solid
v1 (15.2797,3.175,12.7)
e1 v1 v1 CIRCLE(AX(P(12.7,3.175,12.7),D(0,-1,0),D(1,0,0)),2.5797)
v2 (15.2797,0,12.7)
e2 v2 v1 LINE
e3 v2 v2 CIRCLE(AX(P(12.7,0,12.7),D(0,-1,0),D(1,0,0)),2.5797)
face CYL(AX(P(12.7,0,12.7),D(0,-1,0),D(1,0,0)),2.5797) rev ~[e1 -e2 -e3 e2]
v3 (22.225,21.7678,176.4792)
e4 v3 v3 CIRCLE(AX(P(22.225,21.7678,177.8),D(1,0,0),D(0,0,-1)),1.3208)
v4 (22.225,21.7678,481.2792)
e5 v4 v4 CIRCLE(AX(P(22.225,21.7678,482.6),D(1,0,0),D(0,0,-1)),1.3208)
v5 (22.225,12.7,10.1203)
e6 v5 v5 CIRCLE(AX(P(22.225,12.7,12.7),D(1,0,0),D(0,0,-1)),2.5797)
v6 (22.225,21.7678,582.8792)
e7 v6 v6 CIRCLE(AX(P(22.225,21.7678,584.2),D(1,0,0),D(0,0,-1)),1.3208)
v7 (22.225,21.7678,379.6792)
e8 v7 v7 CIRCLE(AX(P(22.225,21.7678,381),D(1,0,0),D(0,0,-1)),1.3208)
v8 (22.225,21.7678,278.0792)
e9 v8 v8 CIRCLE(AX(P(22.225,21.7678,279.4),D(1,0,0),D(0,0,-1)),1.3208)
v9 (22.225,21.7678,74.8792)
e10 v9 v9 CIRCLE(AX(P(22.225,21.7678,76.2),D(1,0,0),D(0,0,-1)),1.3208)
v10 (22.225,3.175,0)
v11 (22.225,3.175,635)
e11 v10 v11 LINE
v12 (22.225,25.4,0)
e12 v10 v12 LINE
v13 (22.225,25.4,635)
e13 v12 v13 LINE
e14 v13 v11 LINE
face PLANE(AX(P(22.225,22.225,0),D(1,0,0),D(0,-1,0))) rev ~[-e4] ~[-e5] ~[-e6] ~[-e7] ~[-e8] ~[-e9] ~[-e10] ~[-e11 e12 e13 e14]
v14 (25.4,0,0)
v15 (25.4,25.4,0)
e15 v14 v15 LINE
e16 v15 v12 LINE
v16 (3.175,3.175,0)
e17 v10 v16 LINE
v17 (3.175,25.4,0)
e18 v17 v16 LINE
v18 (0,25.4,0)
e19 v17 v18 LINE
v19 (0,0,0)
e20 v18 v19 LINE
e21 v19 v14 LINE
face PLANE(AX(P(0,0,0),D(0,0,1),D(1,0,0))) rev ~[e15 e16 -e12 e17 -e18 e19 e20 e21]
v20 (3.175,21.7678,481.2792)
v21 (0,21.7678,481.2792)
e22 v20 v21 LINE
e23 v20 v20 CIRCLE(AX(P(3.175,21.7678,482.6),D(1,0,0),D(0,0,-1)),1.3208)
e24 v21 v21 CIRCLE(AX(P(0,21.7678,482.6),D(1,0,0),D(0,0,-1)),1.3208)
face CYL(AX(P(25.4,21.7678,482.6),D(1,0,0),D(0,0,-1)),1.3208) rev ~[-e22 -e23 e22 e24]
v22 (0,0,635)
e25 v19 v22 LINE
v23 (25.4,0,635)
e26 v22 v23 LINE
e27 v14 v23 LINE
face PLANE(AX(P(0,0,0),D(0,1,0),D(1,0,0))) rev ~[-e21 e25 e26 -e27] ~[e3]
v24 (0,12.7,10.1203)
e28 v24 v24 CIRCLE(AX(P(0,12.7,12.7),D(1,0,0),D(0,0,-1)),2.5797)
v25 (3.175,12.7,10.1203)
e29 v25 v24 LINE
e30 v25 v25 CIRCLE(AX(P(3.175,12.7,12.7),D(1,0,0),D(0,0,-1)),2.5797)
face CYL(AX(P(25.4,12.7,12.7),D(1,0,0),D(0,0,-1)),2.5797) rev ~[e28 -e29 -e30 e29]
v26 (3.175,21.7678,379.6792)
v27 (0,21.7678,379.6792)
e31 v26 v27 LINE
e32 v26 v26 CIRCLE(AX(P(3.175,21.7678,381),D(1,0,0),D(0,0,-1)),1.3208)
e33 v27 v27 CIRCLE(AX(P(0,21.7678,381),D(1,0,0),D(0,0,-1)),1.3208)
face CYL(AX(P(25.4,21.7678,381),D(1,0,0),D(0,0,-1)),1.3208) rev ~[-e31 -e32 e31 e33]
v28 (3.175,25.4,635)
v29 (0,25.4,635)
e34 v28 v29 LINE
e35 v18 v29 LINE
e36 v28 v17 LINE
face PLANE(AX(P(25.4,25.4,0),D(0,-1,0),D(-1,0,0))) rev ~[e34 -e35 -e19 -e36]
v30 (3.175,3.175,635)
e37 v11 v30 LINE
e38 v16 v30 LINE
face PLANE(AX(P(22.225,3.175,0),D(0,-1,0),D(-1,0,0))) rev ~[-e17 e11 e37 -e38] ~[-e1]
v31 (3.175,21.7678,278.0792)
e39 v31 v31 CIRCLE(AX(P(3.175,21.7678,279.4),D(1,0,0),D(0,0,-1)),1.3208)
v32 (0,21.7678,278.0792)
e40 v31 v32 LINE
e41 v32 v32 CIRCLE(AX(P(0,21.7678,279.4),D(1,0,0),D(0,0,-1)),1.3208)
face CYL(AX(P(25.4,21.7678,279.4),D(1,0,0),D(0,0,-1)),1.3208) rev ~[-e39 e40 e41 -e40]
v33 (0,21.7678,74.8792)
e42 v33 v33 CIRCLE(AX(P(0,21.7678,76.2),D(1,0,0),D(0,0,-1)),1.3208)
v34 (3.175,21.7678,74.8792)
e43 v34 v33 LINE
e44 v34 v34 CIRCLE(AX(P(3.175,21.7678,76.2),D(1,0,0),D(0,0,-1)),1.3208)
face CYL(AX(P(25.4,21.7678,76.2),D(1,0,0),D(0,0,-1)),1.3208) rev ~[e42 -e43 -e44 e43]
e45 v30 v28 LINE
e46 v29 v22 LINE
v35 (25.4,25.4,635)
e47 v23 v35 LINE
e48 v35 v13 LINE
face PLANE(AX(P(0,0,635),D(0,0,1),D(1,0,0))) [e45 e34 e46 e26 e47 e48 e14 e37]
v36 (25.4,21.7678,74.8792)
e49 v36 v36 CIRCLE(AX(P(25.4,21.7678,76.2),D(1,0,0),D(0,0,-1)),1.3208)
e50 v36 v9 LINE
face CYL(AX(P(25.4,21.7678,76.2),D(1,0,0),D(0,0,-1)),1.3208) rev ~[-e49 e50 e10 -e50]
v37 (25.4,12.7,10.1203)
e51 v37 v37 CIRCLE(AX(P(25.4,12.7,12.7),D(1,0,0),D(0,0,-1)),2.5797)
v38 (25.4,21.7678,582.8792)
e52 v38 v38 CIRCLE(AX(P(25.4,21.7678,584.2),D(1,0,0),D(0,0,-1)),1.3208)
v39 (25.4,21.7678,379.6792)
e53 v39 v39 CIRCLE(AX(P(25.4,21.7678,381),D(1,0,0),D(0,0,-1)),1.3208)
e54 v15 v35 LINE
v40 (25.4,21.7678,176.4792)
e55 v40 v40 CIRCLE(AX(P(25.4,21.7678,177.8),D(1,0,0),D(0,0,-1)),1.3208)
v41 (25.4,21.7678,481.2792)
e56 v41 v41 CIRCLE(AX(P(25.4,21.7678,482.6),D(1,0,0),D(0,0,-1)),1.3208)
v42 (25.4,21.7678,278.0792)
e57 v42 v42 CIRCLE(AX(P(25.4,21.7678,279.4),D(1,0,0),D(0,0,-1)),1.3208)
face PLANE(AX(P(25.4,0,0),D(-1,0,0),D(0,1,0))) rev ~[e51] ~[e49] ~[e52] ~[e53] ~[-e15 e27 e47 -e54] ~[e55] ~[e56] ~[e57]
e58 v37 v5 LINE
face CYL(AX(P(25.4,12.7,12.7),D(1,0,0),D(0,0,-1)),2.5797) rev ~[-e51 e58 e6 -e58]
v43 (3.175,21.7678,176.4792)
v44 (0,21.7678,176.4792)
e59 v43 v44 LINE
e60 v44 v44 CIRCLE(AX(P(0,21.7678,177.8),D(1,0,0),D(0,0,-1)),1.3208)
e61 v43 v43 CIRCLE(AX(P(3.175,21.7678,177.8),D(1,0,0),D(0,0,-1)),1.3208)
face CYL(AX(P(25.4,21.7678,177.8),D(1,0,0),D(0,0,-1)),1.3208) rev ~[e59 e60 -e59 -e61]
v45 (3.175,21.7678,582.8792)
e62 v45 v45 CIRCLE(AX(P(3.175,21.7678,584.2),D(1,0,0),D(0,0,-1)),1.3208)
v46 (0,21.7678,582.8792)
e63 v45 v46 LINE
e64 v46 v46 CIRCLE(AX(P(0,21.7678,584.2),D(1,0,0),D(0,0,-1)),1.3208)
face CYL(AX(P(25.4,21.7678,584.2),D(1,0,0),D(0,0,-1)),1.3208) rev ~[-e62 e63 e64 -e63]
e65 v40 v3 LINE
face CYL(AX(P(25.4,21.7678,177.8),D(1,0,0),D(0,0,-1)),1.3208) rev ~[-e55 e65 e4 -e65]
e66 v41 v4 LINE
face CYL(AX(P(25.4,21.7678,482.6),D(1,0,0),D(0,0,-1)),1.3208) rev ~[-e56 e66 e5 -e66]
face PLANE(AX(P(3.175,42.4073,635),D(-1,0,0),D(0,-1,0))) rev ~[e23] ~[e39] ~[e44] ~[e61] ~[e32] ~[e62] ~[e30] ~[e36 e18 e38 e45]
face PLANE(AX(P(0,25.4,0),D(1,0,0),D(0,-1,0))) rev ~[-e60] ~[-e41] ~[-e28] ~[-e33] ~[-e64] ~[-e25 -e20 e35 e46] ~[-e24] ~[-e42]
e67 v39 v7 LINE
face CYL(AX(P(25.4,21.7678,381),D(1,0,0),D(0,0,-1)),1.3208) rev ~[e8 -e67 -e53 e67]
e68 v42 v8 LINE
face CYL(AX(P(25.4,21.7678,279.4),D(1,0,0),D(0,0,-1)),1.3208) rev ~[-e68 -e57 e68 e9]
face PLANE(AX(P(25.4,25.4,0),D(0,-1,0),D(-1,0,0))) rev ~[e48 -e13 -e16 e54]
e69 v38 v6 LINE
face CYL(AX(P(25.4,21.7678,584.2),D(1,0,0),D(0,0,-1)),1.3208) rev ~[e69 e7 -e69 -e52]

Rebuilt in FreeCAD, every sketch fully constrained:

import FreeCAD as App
import Part
import Sketcher

V = App.Vector
Q = App.Units.Quantity


def add_polygon(sketch, points):
    """Adds a closed chain of lines whose ends are joined by coincident constraints."""
    first, n = sketch.GeometryCount, len(points)
    for a, b in zip(points, points[1:] + points[:1]):
        sketch.addGeometry(Part.LineSegment(App.Vector(*a, 0), App.Vector(*b, 0)), False)
    for i in range(n):
        sketch.addConstraint(Sketcher.Constraint("Coincident", first + i, 2, first + (i + 1) % n, 1))

doc = App.newDocument("Part")
params = doc.addObject("Spreadsheet::Sheet", "Params")
for row, (alias, value) in enumerate([
    ("sketch1_width", "1 in"),
    ("pad1_length", "25 in"),
    ("sketch2_diameter", "0.104 in"),
    ("pocket1_length", "25 in"),
    ("sketch3_width", "0.75 in"),
    ("pocket2_length", "25 in"),
    ("sketch4_diameter", "0.203126 in"),
    ("pocket3_length", "25 in"),
    ("sketch5_diameter", "0.203126 in"),
    ("pocket4_length", "25 in"),
], start=1):
    params.set(f"A{row}", alias)
    params.set(f"B{row}", "=" + value)
    params.setAlias(f"B{row}", alias)

body = doc.addObject("PartDesign::Body", "Body")

# Sketch on XY plane
sketch1 = body.newObject("Sketcher::SketchObject", "Sketch")
sketch1.AttachmentSupport = (doc.getObject("XY_Plane"), [""])
sketch1.MapMode = "FlatFace"
add_polygon(sketch1, [(0, 25), (0, 0), (25, 0), (25, 25)])  # lines 0-3
add_polygon(sketch1, [(3, 3), (3, 22), (22, 22), (22, 3)])  # lines 4-7
sketch1.addConstraint([
    Sketcher.Constraint("Vertical", 0),
    Sketcher.Constraint("Horizontal", 1),
    Sketcher.Constraint("Vertical", 2),
    Sketcher.Constraint("Horizontal", 3),
    Sketcher.Constraint("Vertical", 4),
    Sketcher.Constraint("Horizontal", 5),
    Sketcher.Constraint("Vertical", 6),
    Sketcher.Constraint("Horizontal", 7),
    Sketcher.Constraint("Coincident", 0, 2, -1, 1),
    Sketcher.Constraint("Equal", 3, 0),
    Sketcher.Constraint("Equal", 7, 4),
    Sketcher.Constraint("DistanceX", 1, 1, 1, 2, Q("1 in")),
    Sketcher.Constraint("DistanceX", -1, 1, 4, 2, Q("0.125 in")),
    Sketcher.Constraint("DistanceY", -1, 1, 6, 2, Q("0.125 in")),
    Sketcher.Constraint("DistanceY", 4, 2, 3, 2, Q("0.125 in")),
])
sketch1.setExpression("Constraints[19]", "Params.sketch1_width")
pad1 = body.newObject("PartDesign::Pad", "Pad")
pad1.Profile = sketch1
pad1.setExpression("Length", "Params.pad1_length")

# Sketch on YZ plane
sketch2 = body.newObject("Sketcher::SketchObject", "Sketch001")
sketch2.AttachmentSupport = (doc.getObject("YZ_Plane"), [""])
sketch2.MapMode = "FlatFace"
sketch2.AttachmentOffset = App.Placement(V(0, 0, 1 * 25.4), App.Rotation())
sketch2.addGeometry([
    Part.Circle(V(21.8, 76.2, 0), V(0, 0, 1), 1.3),  # 0
    Part.Circle(V(21.8, 177.8, 0), V(0, 0, 1), 1.3),  # 1
    Part.Circle(V(21.8, 279.4, 0), V(0, 0, 1), 1.3),  # 2
    Part.Circle(V(21.8, 381, 0), V(0, 0, 1), 1.3),  # 3
    Part.Circle(V(21.8, 482.6, 0), V(0, 0, 1), 1.3),  # 4
    Part.Circle(V(21.8, 584.2, 0), V(0, 0, 1), 1.3),  # 5
], False)
sketch2.addConstraint([
    Sketcher.Constraint("Equal", 0, 1),
    Sketcher.Constraint("Equal", 1, 2),
    Sketcher.Constraint("Equal", 2, 3),
    Sketcher.Constraint("Equal", 3, 4),
    Sketcher.Constraint("Equal", 4, 5),
    Sketcher.Constraint("Vertical", 0, 3, 1, 3),
    Sketcher.Constraint("Vertical", 1, 3, 2, 3),
    Sketcher.Constraint("Vertical", 2, 3, 3, 3),
    Sketcher.Constraint("Vertical", 3, 3, 4, 3),
    Sketcher.Constraint("Vertical", 4, 3, 5, 3),
    Sketcher.Constraint("Diameter", 0, Q("0.104 in")),
    Sketcher.Constraint("DistanceY", -1, 1, 0, 3, Q("3 in")),
    Sketcher.Constraint("DistanceY", 0, 3, 1, 3, Q("4 in")),
    Sketcher.Constraint("DistanceY", 1, 3, 2, 3, Q("4 in")),
    Sketcher.Constraint("DistanceY", 2, 3, 3, 3, Q("4 in")),
    Sketcher.Constraint("DistanceY", 3, 3, 4, 3, Q("4 in")),
    Sketcher.Constraint("DistanceY", 4, 3, 5, 3, Q("4 in")),
    Sketcher.Constraint("DistanceX", -1, 1, 0, 3, Q("0.857 in")),
])
sketch2.setExpression("Constraints[10]", "Params.sketch2_diameter")
pocket1 = body.newObject("PartDesign::Pocket", "Pocket")
pocket1.Profile = sketch2
pocket1.setExpression("Length", "Params.pocket1_length")

# Sketch on XY plane
sketch3 = body.newObject("Sketcher::SketchObject", "Sketch002")
sketch3.AttachmentSupport = (doc.getObject("XY_Plane"), [""])
sketch3.MapMode = "FlatFace"
sketch3.AttachmentOffset = App.Placement(V(0, 0, 25 * 25.4), App.Rotation())
add_polygon(sketch3, [(3, 42), (3, 22), (22, 22), (22, 42)])  # lines 0-3
sketch3.addConstraint([
    Sketcher.Constraint("Vertical", 0),
    Sketcher.Constraint("Horizontal", 1),
    Sketcher.Constraint("Vertical", 2),
    Sketcher.Constraint("Horizontal", 3),
    Sketcher.Constraint("DistanceX", 1, 1, 1, 2, Q("0.75 in")),
    Sketcher.Constraint("DistanceX", -1, 1, 0, 2, Q("0.125 in")),
    Sketcher.Constraint("DistanceY", -1, 1, 0, 2, Q("0.875 in")),
    Sketcher.Constraint("DistanceY", 0, 2, 0, 1, Q("20.1823 mm")),
])
sketch3.setExpression("Constraints[8]", "Params.sketch3_width")
pocket2 = body.newObject("PartDesign::Pocket", "Pocket001")
pocket2.Profile = sketch3
pocket2.setExpression("Length", "Params.pocket2_length")

# Sketch on YZ plane
sketch4 = body.newObject("Sketcher::SketchObject", "Sketch003")
sketch4.AttachmentSupport = (doc.getObject("YZ_Plane"), [""])
sketch4.MapMode = "FlatFace"
sketch4.AttachmentOffset = App.Placement(V(0, 0, 1 * 25.4), App.Rotation())
sketch4.addGeometry(Part.Circle(V(12.7, 12.7, 0), V(0, 0, 1), 2.6), False)
sketch4.addConstraint([
    Sketcher.Constraint("Diameter", 0, Q("0.203126 in")),
    Sketcher.Constraint("DistanceX", -1, 1, 0, 3, Q("0.5 in")),
    Sketcher.Constraint("DistanceY", -1, 1, 0, 3, Q("0.5 in")),
])
sketch4.setExpression("Constraints[0]", "Params.sketch4_diameter")
pocket3 = body.newObject("PartDesign::Pocket", "Pocket002")
pocket3.Profile = sketch4
pocket3.setExpression("Length", "Params.pocket3_length")

# Sketch on XZ plane
sketch5 = body.newObject("Sketcher::SketchObject", "Sketch004")
sketch5.AttachmentSupport = (doc.getObject("XZ_Plane"), [""])
sketch5.MapMode = "FlatFace"
sketch5.addGeometry(Part.Circle(V(12.7, 12.7, 0), V(0, 0, 1), 2.6), False)
sketch5.addConstraint([
    Sketcher.Constraint("Diameter", 0, Q("0.203126 in")),
    Sketcher.Constraint("DistanceX", -1, 1, 0, 3, Q("0.5 in")),
    Sketcher.Constraint("DistanceY", -1, 1, 0, 3, Q("0.5 in")),
])
sketch5.setExpression("Constraints[0]", "Params.sketch5_diameter")
pocket4 = body.newObject("PartDesign::Pocket", "Pocket003")
pocket4.Profile = sketch5
pocket4.setExpression("Length", "Params.pocket4_length")

doc.recompute()
